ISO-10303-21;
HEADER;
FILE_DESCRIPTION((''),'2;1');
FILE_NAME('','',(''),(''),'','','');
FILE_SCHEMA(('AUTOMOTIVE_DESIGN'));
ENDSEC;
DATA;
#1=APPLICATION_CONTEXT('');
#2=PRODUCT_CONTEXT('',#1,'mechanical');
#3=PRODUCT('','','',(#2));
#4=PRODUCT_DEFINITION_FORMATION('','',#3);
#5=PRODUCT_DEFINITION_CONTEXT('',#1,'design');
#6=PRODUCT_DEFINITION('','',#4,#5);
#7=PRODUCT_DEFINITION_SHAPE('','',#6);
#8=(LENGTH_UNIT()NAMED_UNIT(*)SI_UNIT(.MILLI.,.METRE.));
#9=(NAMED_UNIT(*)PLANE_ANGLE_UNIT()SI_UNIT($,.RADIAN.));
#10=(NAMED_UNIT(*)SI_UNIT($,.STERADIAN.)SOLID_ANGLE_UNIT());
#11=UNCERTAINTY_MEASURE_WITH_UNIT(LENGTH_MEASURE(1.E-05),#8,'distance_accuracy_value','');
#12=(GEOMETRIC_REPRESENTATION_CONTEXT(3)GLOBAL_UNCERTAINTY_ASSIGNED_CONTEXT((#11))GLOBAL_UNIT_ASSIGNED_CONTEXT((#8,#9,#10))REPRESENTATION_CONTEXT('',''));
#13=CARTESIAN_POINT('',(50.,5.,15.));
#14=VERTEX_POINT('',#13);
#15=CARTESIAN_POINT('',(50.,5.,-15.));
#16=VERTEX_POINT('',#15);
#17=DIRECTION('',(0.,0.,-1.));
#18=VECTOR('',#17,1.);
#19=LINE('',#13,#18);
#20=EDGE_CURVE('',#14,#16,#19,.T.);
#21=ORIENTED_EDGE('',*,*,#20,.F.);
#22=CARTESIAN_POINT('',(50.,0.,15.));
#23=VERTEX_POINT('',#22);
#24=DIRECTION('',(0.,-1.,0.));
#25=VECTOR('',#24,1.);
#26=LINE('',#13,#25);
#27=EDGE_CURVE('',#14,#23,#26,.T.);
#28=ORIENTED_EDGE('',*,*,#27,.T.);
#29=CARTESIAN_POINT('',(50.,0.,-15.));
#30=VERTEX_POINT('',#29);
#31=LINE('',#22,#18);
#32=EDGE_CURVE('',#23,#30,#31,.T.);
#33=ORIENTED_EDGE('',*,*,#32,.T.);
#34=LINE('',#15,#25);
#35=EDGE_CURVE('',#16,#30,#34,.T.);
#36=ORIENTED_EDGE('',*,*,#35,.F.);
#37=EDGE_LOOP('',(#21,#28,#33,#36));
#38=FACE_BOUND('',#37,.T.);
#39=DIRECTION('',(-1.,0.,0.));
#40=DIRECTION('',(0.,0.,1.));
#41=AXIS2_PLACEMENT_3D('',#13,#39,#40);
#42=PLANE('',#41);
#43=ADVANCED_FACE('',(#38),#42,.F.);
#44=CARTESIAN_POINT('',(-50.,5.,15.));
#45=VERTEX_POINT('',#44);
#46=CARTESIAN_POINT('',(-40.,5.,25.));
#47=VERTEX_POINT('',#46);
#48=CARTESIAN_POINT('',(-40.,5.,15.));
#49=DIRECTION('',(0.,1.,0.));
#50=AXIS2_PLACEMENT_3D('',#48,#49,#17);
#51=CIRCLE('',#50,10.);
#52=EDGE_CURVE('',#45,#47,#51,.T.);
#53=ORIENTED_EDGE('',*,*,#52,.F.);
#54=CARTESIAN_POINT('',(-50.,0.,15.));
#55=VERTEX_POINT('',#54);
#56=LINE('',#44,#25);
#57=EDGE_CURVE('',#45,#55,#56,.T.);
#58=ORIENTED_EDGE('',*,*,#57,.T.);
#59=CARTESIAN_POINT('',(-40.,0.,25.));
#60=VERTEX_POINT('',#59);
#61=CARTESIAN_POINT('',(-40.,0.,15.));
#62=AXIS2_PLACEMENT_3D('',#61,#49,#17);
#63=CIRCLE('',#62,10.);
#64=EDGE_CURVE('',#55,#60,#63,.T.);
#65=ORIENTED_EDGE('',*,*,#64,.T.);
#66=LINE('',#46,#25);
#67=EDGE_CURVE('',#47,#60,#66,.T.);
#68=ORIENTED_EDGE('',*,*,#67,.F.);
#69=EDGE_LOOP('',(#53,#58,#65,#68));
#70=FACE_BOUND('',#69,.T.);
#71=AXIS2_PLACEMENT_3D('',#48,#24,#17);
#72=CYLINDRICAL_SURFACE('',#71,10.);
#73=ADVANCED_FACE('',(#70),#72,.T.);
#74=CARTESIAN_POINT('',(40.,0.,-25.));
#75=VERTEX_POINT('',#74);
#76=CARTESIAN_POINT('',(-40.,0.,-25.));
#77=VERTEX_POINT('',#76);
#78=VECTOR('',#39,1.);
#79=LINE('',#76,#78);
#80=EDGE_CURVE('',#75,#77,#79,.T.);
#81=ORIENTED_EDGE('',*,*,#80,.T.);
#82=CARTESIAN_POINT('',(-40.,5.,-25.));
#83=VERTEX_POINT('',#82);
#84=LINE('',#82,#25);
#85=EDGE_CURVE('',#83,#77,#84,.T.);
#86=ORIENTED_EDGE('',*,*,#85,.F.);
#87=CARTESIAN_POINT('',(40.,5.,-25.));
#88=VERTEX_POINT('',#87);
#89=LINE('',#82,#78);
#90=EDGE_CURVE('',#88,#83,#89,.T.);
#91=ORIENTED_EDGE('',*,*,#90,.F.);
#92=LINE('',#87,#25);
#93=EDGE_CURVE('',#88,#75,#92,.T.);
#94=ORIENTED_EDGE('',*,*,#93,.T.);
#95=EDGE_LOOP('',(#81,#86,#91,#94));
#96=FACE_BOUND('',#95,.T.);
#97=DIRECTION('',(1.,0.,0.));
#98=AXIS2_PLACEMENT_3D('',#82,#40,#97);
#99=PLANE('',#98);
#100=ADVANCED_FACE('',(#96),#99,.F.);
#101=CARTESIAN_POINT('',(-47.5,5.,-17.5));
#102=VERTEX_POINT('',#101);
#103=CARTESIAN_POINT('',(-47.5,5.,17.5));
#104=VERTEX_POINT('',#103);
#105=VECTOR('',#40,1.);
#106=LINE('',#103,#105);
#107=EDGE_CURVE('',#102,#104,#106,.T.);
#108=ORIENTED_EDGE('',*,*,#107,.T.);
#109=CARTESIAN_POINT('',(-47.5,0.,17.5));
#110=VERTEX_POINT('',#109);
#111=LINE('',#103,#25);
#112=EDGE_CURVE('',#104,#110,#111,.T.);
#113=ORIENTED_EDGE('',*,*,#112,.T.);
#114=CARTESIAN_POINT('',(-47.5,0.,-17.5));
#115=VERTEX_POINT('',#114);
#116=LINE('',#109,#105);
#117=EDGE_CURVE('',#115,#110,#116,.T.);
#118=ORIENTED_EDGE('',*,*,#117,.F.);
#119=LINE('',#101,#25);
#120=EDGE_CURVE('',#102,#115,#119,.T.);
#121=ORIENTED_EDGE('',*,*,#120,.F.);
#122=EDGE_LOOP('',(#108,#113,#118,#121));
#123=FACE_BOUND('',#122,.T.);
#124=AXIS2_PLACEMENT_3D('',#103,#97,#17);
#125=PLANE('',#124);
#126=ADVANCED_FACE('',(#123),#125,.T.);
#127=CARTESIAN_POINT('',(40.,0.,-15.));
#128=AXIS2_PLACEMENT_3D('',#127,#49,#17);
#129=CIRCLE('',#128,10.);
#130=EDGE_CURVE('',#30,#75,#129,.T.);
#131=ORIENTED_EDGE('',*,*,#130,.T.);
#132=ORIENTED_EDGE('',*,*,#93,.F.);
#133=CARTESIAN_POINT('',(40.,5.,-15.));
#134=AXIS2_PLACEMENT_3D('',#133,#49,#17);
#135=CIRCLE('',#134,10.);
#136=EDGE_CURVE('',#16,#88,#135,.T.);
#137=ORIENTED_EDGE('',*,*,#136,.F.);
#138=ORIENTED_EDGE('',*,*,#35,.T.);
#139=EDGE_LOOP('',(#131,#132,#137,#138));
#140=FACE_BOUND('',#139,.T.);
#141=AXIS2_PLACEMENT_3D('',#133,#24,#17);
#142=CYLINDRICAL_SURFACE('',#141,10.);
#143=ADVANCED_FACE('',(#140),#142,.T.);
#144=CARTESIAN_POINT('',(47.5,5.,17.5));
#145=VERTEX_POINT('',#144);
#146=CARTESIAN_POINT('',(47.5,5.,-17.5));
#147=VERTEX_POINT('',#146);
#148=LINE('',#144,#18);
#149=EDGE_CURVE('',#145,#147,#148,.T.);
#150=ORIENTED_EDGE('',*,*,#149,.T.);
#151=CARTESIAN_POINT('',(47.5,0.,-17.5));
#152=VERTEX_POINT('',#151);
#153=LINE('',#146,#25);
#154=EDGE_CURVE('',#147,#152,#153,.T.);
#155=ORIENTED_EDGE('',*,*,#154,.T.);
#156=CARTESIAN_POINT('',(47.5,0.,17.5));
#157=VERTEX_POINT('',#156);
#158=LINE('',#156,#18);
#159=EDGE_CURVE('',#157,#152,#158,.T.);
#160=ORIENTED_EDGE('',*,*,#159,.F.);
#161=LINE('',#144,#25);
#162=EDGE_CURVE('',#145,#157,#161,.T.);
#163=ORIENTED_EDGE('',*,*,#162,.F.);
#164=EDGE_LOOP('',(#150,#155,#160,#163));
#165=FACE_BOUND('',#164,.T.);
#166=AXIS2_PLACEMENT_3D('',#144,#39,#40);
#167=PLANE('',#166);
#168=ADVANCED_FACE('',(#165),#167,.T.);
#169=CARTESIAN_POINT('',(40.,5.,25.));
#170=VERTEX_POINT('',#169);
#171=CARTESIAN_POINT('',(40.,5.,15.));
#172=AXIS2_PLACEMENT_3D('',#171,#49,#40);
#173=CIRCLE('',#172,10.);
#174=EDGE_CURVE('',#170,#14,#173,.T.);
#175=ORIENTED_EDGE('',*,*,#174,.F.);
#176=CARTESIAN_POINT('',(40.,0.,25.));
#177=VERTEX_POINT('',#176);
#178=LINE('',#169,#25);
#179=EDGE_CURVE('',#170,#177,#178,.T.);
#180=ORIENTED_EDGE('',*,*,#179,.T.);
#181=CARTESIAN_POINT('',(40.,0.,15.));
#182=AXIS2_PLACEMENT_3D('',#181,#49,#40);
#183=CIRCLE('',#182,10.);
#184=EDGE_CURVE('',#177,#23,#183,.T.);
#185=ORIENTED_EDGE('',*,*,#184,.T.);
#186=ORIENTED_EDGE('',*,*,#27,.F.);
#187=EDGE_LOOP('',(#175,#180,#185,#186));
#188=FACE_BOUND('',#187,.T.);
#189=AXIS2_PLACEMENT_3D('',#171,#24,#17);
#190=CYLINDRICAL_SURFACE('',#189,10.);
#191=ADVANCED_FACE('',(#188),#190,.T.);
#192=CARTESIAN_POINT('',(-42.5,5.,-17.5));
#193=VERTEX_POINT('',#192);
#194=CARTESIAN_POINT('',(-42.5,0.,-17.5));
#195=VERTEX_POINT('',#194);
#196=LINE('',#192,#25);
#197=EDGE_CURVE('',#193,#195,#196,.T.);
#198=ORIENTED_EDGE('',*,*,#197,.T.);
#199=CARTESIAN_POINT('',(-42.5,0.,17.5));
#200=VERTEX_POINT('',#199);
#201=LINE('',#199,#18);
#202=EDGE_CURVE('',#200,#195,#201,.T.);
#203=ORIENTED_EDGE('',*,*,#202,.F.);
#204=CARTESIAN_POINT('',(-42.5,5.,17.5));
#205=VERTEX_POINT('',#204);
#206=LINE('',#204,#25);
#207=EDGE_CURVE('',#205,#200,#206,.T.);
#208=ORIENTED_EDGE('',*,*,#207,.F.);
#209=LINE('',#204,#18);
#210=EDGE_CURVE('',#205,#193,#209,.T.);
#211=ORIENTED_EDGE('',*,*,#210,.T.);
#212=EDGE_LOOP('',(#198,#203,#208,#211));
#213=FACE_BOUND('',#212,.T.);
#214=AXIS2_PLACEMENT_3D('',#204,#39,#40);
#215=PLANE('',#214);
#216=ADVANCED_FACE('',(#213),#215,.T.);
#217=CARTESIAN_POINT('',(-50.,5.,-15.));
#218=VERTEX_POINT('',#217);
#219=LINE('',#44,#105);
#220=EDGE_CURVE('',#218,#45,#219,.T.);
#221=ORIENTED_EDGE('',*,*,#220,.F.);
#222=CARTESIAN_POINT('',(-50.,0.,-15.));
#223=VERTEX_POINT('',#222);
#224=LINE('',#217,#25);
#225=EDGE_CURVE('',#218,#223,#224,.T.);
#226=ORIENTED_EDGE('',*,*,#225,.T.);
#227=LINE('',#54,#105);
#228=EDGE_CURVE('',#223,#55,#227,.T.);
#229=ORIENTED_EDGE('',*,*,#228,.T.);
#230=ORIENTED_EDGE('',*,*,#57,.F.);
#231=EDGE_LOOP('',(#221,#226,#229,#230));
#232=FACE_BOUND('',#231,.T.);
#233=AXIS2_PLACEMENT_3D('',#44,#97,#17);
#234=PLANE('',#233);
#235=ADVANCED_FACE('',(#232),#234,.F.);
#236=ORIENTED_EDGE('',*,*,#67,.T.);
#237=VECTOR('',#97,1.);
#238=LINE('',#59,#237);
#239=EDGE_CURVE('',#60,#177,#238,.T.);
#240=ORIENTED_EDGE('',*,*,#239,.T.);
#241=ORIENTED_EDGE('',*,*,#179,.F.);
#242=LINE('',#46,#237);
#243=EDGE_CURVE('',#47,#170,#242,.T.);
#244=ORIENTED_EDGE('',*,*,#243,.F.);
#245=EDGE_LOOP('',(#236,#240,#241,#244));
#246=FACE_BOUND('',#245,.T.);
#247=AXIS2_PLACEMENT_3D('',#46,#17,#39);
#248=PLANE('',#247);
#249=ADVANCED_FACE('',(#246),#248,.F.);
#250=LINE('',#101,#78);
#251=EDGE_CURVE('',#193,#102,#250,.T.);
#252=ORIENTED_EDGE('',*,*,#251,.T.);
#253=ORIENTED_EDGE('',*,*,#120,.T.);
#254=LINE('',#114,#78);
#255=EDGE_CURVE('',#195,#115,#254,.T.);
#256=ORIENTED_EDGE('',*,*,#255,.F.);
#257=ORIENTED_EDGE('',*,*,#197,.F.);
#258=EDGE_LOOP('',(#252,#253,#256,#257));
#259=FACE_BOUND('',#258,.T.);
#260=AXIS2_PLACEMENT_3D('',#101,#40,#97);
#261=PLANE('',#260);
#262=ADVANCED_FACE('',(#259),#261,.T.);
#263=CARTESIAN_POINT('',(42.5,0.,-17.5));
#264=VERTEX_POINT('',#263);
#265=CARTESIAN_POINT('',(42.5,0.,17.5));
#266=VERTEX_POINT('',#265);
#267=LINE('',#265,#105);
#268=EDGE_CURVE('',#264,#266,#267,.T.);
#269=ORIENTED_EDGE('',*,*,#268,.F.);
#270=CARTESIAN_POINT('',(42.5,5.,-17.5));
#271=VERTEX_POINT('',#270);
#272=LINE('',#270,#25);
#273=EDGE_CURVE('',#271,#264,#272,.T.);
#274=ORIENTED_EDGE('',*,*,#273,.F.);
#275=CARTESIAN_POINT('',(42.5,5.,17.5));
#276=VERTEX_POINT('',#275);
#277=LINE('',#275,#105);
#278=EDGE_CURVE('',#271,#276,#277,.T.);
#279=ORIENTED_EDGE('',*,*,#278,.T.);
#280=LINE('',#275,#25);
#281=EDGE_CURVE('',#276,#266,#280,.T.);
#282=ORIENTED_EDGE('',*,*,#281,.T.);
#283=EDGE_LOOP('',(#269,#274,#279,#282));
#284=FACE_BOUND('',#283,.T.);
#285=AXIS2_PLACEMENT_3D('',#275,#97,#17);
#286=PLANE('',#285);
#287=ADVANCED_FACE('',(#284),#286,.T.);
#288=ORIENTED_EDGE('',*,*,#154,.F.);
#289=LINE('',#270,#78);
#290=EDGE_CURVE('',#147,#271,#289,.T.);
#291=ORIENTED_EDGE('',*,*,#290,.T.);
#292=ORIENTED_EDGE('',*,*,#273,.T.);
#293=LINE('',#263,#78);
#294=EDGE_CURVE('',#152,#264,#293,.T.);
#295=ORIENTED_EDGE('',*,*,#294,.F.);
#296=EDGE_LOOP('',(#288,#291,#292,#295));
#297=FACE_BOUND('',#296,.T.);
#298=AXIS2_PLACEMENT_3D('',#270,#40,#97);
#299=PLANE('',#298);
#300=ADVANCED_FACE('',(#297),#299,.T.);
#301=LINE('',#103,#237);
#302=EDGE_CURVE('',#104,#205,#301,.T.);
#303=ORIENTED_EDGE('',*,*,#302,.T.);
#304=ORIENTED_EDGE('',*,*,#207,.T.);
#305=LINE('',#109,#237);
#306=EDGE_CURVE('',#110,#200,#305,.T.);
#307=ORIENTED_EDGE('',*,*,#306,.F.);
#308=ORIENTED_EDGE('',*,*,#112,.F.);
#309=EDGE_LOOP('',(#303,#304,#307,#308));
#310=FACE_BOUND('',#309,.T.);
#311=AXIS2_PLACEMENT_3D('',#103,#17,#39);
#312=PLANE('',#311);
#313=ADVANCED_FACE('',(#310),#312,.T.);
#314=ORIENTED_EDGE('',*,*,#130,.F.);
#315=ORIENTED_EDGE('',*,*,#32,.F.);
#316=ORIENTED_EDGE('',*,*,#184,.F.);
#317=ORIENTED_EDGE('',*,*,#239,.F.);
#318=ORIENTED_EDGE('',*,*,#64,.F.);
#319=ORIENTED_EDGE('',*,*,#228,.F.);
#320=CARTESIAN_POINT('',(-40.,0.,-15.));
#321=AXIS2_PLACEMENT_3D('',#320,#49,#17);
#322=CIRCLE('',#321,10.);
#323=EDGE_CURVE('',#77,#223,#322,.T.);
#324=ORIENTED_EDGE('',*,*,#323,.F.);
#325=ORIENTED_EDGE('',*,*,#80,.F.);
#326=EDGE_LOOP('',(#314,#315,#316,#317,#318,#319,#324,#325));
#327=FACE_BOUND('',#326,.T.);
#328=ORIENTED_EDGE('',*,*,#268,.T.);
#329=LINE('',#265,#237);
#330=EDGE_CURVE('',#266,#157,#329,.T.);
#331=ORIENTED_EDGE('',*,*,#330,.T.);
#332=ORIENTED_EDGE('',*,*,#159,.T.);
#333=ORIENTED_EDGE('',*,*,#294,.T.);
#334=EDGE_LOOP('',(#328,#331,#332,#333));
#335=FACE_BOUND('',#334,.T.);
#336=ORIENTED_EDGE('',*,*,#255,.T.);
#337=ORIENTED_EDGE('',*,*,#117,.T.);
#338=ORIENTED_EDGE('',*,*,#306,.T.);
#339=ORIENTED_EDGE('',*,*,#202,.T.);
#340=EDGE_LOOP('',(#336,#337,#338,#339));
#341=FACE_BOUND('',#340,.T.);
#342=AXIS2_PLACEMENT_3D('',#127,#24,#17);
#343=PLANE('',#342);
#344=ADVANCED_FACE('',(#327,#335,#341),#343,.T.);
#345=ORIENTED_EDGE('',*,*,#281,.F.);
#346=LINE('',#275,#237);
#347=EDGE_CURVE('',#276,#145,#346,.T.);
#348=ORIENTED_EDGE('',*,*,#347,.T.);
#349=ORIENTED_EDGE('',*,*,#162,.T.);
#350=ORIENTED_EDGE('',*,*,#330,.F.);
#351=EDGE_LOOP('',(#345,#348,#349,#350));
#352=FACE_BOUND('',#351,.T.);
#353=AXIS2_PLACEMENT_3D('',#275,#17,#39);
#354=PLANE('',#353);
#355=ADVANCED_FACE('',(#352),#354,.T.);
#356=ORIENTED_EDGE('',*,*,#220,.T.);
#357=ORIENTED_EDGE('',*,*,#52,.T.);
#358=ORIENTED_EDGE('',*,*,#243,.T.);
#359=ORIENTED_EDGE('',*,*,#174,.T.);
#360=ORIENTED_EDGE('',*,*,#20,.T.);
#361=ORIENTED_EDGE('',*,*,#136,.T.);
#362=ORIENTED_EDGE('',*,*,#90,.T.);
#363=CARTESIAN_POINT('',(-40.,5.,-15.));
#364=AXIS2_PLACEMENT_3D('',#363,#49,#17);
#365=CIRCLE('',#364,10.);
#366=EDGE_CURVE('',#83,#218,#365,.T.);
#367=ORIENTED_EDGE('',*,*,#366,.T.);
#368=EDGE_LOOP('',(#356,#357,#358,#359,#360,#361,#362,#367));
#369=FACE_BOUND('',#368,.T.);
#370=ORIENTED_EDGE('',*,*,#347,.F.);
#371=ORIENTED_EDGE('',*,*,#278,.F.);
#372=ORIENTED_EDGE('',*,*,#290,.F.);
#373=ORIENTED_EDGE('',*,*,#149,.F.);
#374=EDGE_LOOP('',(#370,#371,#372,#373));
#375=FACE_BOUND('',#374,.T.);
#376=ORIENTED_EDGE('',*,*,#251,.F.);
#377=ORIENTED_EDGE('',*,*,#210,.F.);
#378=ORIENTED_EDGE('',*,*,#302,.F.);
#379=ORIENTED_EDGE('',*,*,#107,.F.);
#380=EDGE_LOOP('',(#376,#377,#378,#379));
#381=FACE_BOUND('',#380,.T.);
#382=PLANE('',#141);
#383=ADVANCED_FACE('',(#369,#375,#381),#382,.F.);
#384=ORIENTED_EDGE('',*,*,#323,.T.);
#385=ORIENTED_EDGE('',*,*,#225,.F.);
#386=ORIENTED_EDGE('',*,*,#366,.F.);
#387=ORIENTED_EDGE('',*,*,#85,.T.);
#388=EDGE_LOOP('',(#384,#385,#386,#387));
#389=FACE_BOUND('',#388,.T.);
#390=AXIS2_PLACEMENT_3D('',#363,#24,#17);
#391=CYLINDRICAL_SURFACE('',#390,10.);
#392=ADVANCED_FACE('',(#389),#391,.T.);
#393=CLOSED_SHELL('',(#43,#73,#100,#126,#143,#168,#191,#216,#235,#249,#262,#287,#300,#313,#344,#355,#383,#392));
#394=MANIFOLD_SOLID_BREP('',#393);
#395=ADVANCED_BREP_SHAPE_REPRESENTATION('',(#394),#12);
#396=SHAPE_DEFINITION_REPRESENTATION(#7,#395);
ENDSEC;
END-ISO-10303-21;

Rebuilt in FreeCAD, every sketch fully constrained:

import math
import FreeCAD as App
import Part
import Sketcher
Q = App.Units.Quantity

doc = App.newDocument("Part")
params = doc.addObject("Spreadsheet::Sheet", "Params")
for row, (alias, value) in enumerate([
    ("sketch1_radius", "10 mm"),
    ("sketch1_width", "80 mm"),
    ("sketch1_width2", "5 mm"),
    ("sketch1_height", "30 mm"),
    ("sketch1_height2", "35 mm"),
    ("pad1_length", "5 mm"),
], start=1):
    params.set(f"A{row}", alias)
    params.set(f"B{row}", "=" + value)
    params.setAlias(f"B{row}", alias)

body = doc.addObject("PartDesign::Body", "Body")

sketch1 = body.newObject("Sketcher::SketchObject", "Sketch")
sketch1.AttachmentSupport = (doc.getObject("XZ_Plane"), [""])
sketch1.MapMode = "FlatFace"
sketch1.addGeometry(Part.LineSegment(App.Vector(-40, 25, 0), App.Vector(40, 25, 0)), False)
sketch1.addGeometry(Part.ArcOfCircle(Part.Circle(App.Vector(40, 15, 0), App.Vector(0, 0, 1), 10), math.radians(0), math.radians(90)), False)
sketch1.addGeometry(Part.LineSegment(App.Vector(50, 15, 0), App.Vector(50, -15, 0)), False)
sketch1.addGeometry(Part.ArcOfCircle(Part.Circle(App.Vector(40, -15, 0), App.Vector(0, 0, 1), 10), math.radians(-90), math.radians(0)), False)
sketch1.addGeometry(Part.LineSegment(App.Vector(40, -25, 0), App.Vector(-40, -25, 0)), False)
sketch1.addGeometry(Part.ArcOfCircle(Part.Circle(App.Vector(-40, -15, 0), App.Vector(0, 0, 1), 10), math.radians(180), math.radians(270)), False)
sketch1.addGeometry(Part.LineSegment(App.Vector(-50, -15, 0), App.Vector(-50, 15, 0)), False)
sketch1.addGeometry(Part.ArcOfCircle(Part.Circle(App.Vector(-40, 15, 0), App.Vector(0, 0, 1), 10), math.radians(90), math.radians(180)), False)
sketch1.addGeometry(Part.LineSegment(App.Vector(-42, 18, 0), App.Vector(-48, 18, 0)), False)
sketch1.addGeometry(Part.LineSegment(App.Vector(-48, 18, 0), App.Vector(-48, -18, 0)), False)
sketch1.addGeometry(Part.LineSegment(App.Vector(-48, -18, 0), App.Vector(-42, -18, 0)), False)
sketch1.addGeometry(Part.LineSegment(App.Vector(-42, -18, 0), App.Vector(-42, 18, 0)), False)
sketch1.addGeometry(Part.LineSegment(App.Vector(48, 18, 0), App.Vector(42, 18, 0)), False)
sketch1.addGeometry(Part.LineSegment(App.Vector(42, 18, 0), App.Vector(42, -18, 0)), False)
sketch1.addGeometry(Part.LineSegment(App.Vector(42, -18, 0), App.Vector(48, -18, 0)), False)
sketch1.addGeometry(Part.LineSegment(App.Vector(48, -18, 0), App.Vector(48, 18, 0)), False)
sketch1.addConstraint(Sketcher.Constraint("Tangent", 0, 2, 1, 2))
sketch1.addConstraint(Sketcher.Constraint("Tangent", 1, 1, 2, 1))
sketch1.addConstraint(Sketcher.Constraint("Tangent", 2, 2, 3, 2))
sketch1.addConstraint(Sketcher.Constraint("Tangent", 3, 1, 4, 1))
sketch1.addConstraint(Sketcher.Constraint("Tangent", 4, 2, 5, 2))
sketch1.addConstraint(Sketcher.Constraint("Tangent", 5, 1, 6, 1))
sketch1.addConstraint(Sketcher.Constraint("Tangent", 6, 2, 7, 2))
sketch1.addConstraint(Sketcher.Constraint("Tangent", 7, 1, 0, 1))
sketch1.addConstraint(Sketcher.Constraint("Coincident", 8, 2, 9, 1))
sketch1.addConstraint(Sketcher.Constraint("Coincident", 9, 2, 10, 1))
sketch1.addConstraint(Sketcher.Constraint("Coincident", 10, 2, 11, 1))
sketch1.addConstraint(Sketcher.Constraint("Coincident", 11, 2, 8, 1))
sketch1.addConstraint(Sketcher.Constraint("Coincident", 12, 2, 13, 1))
sketch1.addConstraint(Sketcher.Constraint("Coincident", 13, 2, 14, 1))
sketch1.addConstraint(Sketcher.Constraint("Coincident", 14, 2, 15, 1))
sketch1.addConstraint(Sketcher.Constraint("Coincident", 15, 2, 12, 1))
sketch1.addConstraint(Sketcher.Constraint("Horizontal", 0))
sketch1.addConstraint(Sketcher.Constraint("Vertical", 2))
sketch1.addConstraint(Sketcher.Constraint("Horizontal", 4))
sketch1.addConstraint(Sketcher.Constraint("Vertical", 6))
sketch1.addConstraint(Sketcher.Constraint("Horizontal", 8))
sketch1.addConstraint(Sketcher.Constraint("Vertical", 9))
sketch1.addConstraint(Sketcher.Constraint("Horizontal", 10))
sketch1.addConstraint(Sketcher.Constraint("Vertical", 11))
sketch1.addConstraint(Sketcher.Constraint("Horizontal", 12))
sketch1.addConstraint(Sketcher.Constraint("Vertical", 13))
sketch1.addConstraint(Sketcher.Constraint("Horizontal", 14))
sketch1.addConstraint(Sketcher.Constraint("Vertical", 15))
sketch1.addConstraint(Sketcher.Constraint("Equal", 1, 3))
sketch1.addConstraint(Sketcher.Constraint("Equal", 3, 5))
sketch1.addConstraint(Sketcher.Constraint("Equal", 5, 7))
sketch1.addConstraint(Sketcher.Constraint("Symmetric", 1, 3, 5, 3, -1, 1))
sketch1.addConstraint(Sketcher.Constraint("Symmetric", 10, 2, 12, 2, -1, 1))
sketch1.addConstraint(Sketcher.Constraint("Symmetric", 8, 2, 14, 2, -1, 1))
sketch1.addConstraint(Sketcher.Constraint("Horizontal", 11, 2, 12, 2))
sketch1.addConstraint(Sketcher.Constraint("Radius", 1, Q("10 mm")))
sketch1.addConstraint(Sketcher.Constraint("DistanceX", 0, 1, 0, 2, Q("80 mm")))
sketch1.addConstraint(Sketcher.Constraint("DistanceX", 8, 2, 8, 1, Q("5 mm")))
sketch1.addConstraint(Sketcher.Constraint("DistanceY", 2, 2, 2, 1, Q("30 mm")))
sketch1.addConstraint(Sketcher.Constraint("DistanceY", 9, 2, 9, 1, Q("35 mm")))
sketch1.addConstraint(Sketcher.Constraint("DistanceX", 8, 2, -1, 1, Q("47.5 mm")))
sketch1.setExpression("Constraints[35]", "Params.sketch1_radius")
sketch1.setExpression("Constraints[36]", "Params.sketch1_width")
sketch1.setExpression("Constraints[37]", "Params.sketch1_width2")
sketch1.setExpression("Constraints[38]", "Params.sketch1_height")
sketch1.setExpression("Constraints[39]", "Params.sketch1_height2")
pad1 = body.newObject("PartDesign::Pad", "Pad")
pad1.Profile = sketch1
pad1.setExpression("Length", "Params.pad1_length")
pad1.Reversed = True

doc.recompute()
